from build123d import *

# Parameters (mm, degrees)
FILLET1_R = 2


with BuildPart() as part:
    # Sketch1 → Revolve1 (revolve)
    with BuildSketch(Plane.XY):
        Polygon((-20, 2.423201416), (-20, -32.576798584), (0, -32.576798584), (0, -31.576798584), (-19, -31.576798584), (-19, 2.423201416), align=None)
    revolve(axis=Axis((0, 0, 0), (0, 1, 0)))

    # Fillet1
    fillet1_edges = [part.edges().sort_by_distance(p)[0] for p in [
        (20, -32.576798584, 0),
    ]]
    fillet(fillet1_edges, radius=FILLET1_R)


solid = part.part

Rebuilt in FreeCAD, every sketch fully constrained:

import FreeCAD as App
import Part
import Sketcher
Q = App.Units.Quantity


def edges_at(feature, points):
    """Names of the edges that pass closest to the given points."""
    edges = feature.Shape.Edges
    near = lambda p: min(range(len(edges)), key=lambda i: edges[i].distToShape(Part.Vertex(*p))[0])
    return sorted({f"Edge{near(p) + 1}" for p in points})

doc = App.newDocument("Part")
body = doc.addObject("PartDesign::Body", "Body")

sketch1 = body.newObject("Sketcher::SketchObject", "Sketch")
sketch1.AttachmentSupport = (doc.getObject("XY_Plane"), [""])
sketch1.MapMode = "FlatFace"
sketch1.addGeometry([
    Part.LineSegment(App.Vector(-20, 2.423201, 0), App.Vector(-20, -32.576799, 0)),
    Part.LineSegment(App.Vector(-20, -32.576799, 0), App.Vector(0, -32.576799, 0)),
    Part.LineSegment(App.Vector(0, -32.576799, 0), App.Vector(0, -31.576799, 0)),
    Part.LineSegment(App.Vector(0, -31.576799, 0), App.Vector(-19, -31.576799, 0)),
    Part.LineSegment(App.Vector(-19, -31.576799, 0), App.Vector(-19, 2.423201, 0)),
    Part.LineSegment(App.Vector(-19, 2.423201, 0), App.Vector(-20, 2.423201, 0)),
], False)
sketch1.addConstraint([
    Sketcher.Constraint("Coincident", 0, 2, 1, 1),
    Sketcher.Constraint("Coincident", 1, 2, 2, 1),
    Sketcher.Constraint("Coincident", 2, 2, 3, 1),
    Sketcher.Constraint("Coincident", 3, 2, 4, 1),
    Sketcher.Constraint("Coincident", 4, 2, 5, 1),
    Sketcher.Constraint("Coincident", 5, 2, 0, 1),
    Sketcher.Constraint("Vertical", 0),
    Sketcher.Constraint("Horizontal", 1),
    Sketcher.Constraint("Vertical", 2),
    Sketcher.Constraint("Horizontal", 3),
    Sketcher.Constraint("Vertical", 4),
    Sketcher.Constraint("Horizontal", 5),
    Sketcher.Constraint("PointOnObject", 1, 2, -2),
    Sketcher.Constraint("Equal", 5, 2),
    Sketcher.Constraint("DistanceX", 1, 1, 1, 2, Q("20 mm")),
    Sketcher.Constraint("DistanceX", 3, 2, 3, 1, Q("19 mm")),
    Sketcher.Constraint("DistanceY", 0, 2, 0, 1, Q("35 mm")),
    Sketcher.Constraint("DistanceY", 0, 2, -1, 1, Q("32.576799 mm")),
])
revolution = body.newObject("PartDesign::Revolution", "Revolution")
revolution.Profile = sketch1
revolution.ReferenceAxis = (sketch1, ["V_Axis"])
revolution.Angle = 360
doc.recompute()

fillet = body.newObject("PartDesign::Fillet", "Fillet")
fillet.Base = (revolution, edges_at(revolution, [(20, -32.577, 0)]))
fillet.Radius = 2

doc.recompute()
